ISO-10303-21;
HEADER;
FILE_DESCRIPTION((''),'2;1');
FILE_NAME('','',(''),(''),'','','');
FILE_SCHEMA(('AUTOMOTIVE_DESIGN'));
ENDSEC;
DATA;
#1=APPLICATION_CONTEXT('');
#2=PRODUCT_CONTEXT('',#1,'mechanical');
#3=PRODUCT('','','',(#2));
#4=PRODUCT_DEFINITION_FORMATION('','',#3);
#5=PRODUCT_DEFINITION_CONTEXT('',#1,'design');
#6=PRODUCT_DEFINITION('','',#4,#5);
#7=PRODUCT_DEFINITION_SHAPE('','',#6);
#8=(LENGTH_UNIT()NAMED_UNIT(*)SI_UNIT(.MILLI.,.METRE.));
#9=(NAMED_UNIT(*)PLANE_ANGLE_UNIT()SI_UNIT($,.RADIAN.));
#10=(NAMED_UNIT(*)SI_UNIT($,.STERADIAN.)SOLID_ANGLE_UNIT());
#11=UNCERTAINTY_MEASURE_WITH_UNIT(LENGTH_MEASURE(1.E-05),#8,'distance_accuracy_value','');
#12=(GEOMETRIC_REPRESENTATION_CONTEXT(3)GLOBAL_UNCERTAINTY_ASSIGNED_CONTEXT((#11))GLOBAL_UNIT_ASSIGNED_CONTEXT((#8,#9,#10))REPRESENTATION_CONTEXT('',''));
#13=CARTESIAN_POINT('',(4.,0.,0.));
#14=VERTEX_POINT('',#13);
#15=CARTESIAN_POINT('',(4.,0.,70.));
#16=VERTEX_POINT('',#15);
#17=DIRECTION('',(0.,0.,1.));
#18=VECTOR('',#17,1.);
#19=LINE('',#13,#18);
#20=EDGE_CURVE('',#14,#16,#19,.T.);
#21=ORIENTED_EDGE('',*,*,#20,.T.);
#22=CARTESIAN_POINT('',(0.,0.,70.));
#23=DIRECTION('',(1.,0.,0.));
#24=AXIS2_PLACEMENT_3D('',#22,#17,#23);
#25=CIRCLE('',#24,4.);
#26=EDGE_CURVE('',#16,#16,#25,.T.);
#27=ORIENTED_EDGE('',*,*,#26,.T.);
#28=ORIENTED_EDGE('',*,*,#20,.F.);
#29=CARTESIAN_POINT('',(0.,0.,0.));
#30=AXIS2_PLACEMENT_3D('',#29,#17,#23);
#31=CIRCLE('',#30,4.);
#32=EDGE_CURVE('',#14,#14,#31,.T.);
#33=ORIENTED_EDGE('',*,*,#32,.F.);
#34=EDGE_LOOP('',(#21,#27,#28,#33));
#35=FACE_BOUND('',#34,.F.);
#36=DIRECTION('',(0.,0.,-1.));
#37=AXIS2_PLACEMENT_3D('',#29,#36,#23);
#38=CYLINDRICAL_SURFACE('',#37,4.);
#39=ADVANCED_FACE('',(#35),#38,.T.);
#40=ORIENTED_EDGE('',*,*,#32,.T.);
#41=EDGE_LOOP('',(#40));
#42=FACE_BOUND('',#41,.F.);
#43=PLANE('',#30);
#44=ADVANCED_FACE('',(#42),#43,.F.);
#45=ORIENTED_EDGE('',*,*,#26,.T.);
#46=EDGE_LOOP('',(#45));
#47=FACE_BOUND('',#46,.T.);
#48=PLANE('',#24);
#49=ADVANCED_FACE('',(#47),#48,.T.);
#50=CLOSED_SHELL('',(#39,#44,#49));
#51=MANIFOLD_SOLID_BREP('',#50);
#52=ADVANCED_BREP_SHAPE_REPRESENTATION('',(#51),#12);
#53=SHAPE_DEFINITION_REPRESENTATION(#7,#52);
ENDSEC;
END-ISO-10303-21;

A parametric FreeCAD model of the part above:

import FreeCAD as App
import Part
import Sketcher
from FreeCAD import Vector
Q = App.Units.Quantity

doc = App.newDocument("Part")
body = doc.addObject("PartDesign::Body", "Body")

# Sketch on XY plane
sketch1 = body.newObject("Sketcher::SketchObject", "Sketch")
sketch1.AttachmentSupport = (doc.getObject("XY_Plane"), [""])
sketch1.MapMode = "FlatFace"
sketch1.addGeometry(Part.Circle(Vector(0, 0, 0), Vector(0, 0, 1), 4), False)
sketch1.addConstraint(Sketcher.Constraint("Coincident", 0, 3, -1, 1))
sketch1.addConstraint(Sketcher.Constraint("Diameter", 0, Q("8 mm")))
pad1 = body.newObject("PartDesign::Pad", "Pad")
pad1.Profile = sketch1
pad1.Length = 70

doc.recompute()
